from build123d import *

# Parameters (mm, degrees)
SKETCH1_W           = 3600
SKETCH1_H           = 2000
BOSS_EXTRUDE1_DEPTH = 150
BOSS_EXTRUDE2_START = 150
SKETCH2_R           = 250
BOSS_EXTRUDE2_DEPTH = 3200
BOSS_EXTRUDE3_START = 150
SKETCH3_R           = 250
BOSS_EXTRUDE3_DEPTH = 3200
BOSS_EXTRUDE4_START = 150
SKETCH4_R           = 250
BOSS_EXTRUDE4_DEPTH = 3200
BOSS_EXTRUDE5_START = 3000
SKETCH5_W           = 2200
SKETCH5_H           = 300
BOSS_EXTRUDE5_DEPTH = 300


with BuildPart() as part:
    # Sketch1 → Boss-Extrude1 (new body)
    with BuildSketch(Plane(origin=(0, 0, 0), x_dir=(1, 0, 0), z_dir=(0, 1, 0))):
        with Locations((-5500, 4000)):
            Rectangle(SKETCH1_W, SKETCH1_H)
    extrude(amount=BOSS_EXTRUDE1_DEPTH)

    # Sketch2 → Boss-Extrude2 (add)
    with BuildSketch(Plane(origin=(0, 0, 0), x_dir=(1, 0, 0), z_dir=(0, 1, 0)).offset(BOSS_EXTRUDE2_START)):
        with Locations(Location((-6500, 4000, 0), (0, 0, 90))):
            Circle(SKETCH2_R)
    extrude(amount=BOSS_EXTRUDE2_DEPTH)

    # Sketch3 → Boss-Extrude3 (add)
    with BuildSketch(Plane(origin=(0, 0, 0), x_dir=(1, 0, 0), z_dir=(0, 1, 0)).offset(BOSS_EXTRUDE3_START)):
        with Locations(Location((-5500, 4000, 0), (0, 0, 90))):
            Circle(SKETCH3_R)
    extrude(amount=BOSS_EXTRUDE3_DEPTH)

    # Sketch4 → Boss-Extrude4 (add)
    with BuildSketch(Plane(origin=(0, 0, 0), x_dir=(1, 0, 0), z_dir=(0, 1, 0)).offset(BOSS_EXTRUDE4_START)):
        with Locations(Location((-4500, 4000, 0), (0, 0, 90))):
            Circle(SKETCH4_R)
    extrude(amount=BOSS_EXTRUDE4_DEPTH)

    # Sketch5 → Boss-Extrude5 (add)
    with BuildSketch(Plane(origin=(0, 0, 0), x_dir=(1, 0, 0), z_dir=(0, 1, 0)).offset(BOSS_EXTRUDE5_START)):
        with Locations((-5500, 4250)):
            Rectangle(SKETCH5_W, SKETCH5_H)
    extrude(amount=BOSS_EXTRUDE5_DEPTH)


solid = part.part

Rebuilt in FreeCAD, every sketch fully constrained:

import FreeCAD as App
import Part
import Sketcher


def add_polygon(sketch, points):
    """Adds a closed chain of lines whose ends are joined by coincident constraints."""
    first, n = sketch.GeometryCount, len(points)
    for a, b in zip(points, points[1:] + points[:1]):
        sketch.addGeometry(Part.LineSegment(App.Vector(*a, 0), App.Vector(*b, 0)), False)
    for i in range(n):
        sketch.addConstraint(Sketcher.Constraint("Coincident", first + i, 2, first + (i + 1) % n, 1))

doc = App.newDocument("Part")
body = doc.addObject("PartDesign::Body", "Body")

# Sketch on XZ plane
sketch1 = doc.addObject("Sketcher::SketchObject", "Sketch")
body.addObject(sketch1)
sketch1.AttachmentSupport = (doc.XZ_Plane, [""])
sketch1.MapMode = "FlatFace"
add_polygon(sketch1, [(-7300, -5000), (-7300, -3000), (-3700, -3000), (-3700, -5000)])  # lines 0-3
sketch1.addConstraint([
    Sketcher.Constraint("Vertical", 0),
    Sketcher.Constraint("Horizontal", 1),
    Sketcher.Constraint("Vertical", 2),
    Sketcher.Constraint("Horizontal", 3),
    Sketcher.Constraint("DistanceX", 1, 1, 1, 2, 3600.0),
    Sketcher.Constraint("DistanceY", 0, 1, 0, 2, 2000.0),
    Sketcher.Constraint("DistanceX", 0, 2, -1, 1, 7300.0),
    Sketcher.Constraint("DistanceY", 0, 2, -1, 1, 3000.0),
])
pad1 = doc.addObject("PartDesign::Pad", "Pad")
body.addObject(pad1)
pad1.Profile = sketch1
pad1.Length = 150
pad1.Reversed = True

# Sketch on XZ plane
sketch2 = doc.addObject("Sketcher::SketchObject", "Sketch001")
body.addObject(sketch2)
sketch2.AttachmentSupport = (doc.XZ_Plane, [""])
sketch2.MapMode = "FlatFace"
sketch2.AttachmentOffset = App.Placement(App.Vector(0, 0, -150), App.Rotation())
sketch2.addGeometry(Part.Circle(App.Vector(-6500, -4000, 0), App.Vector(0, 0, 1), 250), False)
sketch2.addConstraint([
    Sketcher.Constraint("Diameter", 0, 500.0),
    Sketcher.Constraint("DistanceX", 0, 3, -1, 1, 6500.0),
    Sketcher.Constraint("DistanceY", 0, 3, -1, 1, 4000.0),
])
pad2 = doc.addObject("PartDesign::Pad", "Pad001")
body.addObject(pad2)
pad2.Profile = sketch2
pad2.Length = 3200
pad2.Reversed = True

# Sketch on XZ plane
sketch3 = doc.addObject("Sketcher::SketchObject", "Sketch002")
body.addObject(sketch3)
sketch3.AttachmentSupport = (doc.XZ_Plane, [""])
sketch3.MapMode = "FlatFace"
sketch3.AttachmentOffset = App.Placement(App.Vector(0, 0, -150), App.Rotation())
sketch3.addGeometry(Part.Circle(App.Vector(-5500, -4000, 0), App.Vector(0, 0, 1), 250), False)
sketch3.addConstraint([
    Sketcher.Constraint("Diameter", 0, 500.0),
    Sketcher.Constraint("DistanceX", 0, 3, -1, 1, 5500.0),
    Sketcher.Constraint("DistanceY", 0, 3, -1, 1, 4000.0),
])
pad3 = doc.addObject("PartDesign::Pad", "Pad002")
body.addObject(pad3)
pad3.Profile = sketch3
pad3.Length = 3200
pad3.Reversed = True

# Sketch on XZ plane
sketch4 = doc.addObject("Sketcher::SketchObject", "Sketch003")
body.addObject(sketch4)
sketch4.AttachmentSupport = (doc.XZ_Plane, [""])
sketch4.MapMode = "FlatFace"
sketch4.AttachmentOffset = App.Placement(App.Vector(0, 0, -150), App.Rotation())
sketch4.addGeometry(Part.Circle(App.Vector(-4500, -4000, 0), App.Vector(0, 0, 1), 250), False)
sketch4.addConstraint([
    Sketcher.Constraint("Diameter", 0, 500.0),
    Sketcher.Constraint("DistanceX", 0, 3, -1, 1, 4500.0),
    Sketcher.Constraint("DistanceY", 0, 3, -1, 1, 4000.0),
])
pad4 = doc.addObject("PartDesign::Pad", "Pad003")
body.addObject(pad4)
pad4.Profile = sketch4
pad4.Length = 3200
pad4.Reversed = True

# Sketch on XZ plane
sketch5 = doc.addObject("Sketcher::SketchObject", "Sketch004")
body.addObject(sketch5)
sketch5.AttachmentSupport = (doc.XZ_Plane, [""])
sketch5.MapMode = "FlatFace"
sketch5.AttachmentOffset = App.Placement(App.Vector(0, 0, -3000), App.Rotation())
add_polygon(sketch5, [(-6600, -4400), (-6600, -4100), (-4400, -4100), (-4400, -4400)])  # lines 0-3
sketch5.addConstraint([
    Sketcher.Constraint("Vertical", 0),
    Sketcher.Constraint("Horizontal", 1),
    Sketcher.Constraint("Vertical", 2),
    Sketcher.Constraint("Horizontal", 3),
    Sketcher.Constraint("DistanceX", 1, 1, 1, 2, 2200.0),
    Sketcher.Constraint("DistanceY", 0, 1, 0, 2, 300.0),
    Sketcher.Constraint("DistanceX", 0, 2, -1, 1, 6600.0),
    Sketcher.Constraint("DistanceY", 0, 2, -1, 1, 4100.0),
])
pad5 = doc.addObject("PartDesign::Pad", "Pad004")
body.addObject(pad5)
pad5.Profile = sketch5
pad5.Length = 300
pad5.Reversed = True

doc.recompute()
